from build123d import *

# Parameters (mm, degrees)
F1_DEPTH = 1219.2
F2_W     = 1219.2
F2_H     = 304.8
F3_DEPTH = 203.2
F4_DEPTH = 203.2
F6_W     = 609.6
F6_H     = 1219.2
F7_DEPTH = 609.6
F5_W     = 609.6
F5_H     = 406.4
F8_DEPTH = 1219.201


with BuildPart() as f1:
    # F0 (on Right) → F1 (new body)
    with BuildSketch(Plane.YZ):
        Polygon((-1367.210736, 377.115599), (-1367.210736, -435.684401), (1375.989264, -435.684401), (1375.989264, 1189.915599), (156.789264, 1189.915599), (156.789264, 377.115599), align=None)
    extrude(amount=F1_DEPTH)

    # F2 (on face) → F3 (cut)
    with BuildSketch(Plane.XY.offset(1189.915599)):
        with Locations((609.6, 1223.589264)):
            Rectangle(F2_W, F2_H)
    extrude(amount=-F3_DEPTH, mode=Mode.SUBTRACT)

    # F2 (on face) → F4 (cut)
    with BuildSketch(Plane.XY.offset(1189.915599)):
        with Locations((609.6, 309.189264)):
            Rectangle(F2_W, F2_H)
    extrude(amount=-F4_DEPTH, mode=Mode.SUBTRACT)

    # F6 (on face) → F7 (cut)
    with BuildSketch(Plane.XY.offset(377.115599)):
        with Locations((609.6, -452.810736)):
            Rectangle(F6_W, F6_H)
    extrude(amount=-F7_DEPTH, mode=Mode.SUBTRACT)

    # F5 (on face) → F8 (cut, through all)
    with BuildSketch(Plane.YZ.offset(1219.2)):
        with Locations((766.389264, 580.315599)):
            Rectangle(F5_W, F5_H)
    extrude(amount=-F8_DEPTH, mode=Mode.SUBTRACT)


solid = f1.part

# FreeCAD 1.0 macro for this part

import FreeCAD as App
import Part
import Sketcher

V = App.Vector
Q = App.Units.Quantity

doc = App.newDocument("Part")
body = doc.addObject("PartDesign::Body", "Body")

sketch1 = body.newObject("Sketcher::SketchObject", "Sketch")
sketch1.AttachmentSupport = (doc.getObject("YZ_Plane"), [""])
sketch1.MapMode = "FlatFace"
sketch1.addGeometry([
    Part.LineSegment(V(-1367.210736, 377.115599, 0), V(-1367.210736, -435.684401, 0)),
    Part.LineSegment(V(-1367.210736, -435.684401, 0), V(1375.989264, -435.684401, 0)),
    Part.LineSegment(V(1375.989264, -435.684401, 0), V(1375.989264, 1189.915599, 0)),
    Part.LineSegment(V(1375.989264, 1189.915599, 0), V(156.789264, 1189.915599, 0)),
    Part.LineSegment(V(156.789264, 1189.915599, 0), V(156.789264, 377.115599, 0)),
    Part.LineSegment(V(156.789264, 377.115599, 0), V(-1367.210736, 377.115599, 0)),
], False)
sketch1.addConstraint([
    Sketcher.Constraint("Coincident", 0, 2, 1, 1),
    Sketcher.Constraint("Coincident", 1, 2, 2, 1),
    Sketcher.Constraint("Coincident", 2, 2, 3, 1),
    Sketcher.Constraint("Coincident", 3, 2, 4, 1),
    Sketcher.Constraint("Coincident", 4, 2, 5, 1),
    Sketcher.Constraint("Coincident", 5, 2, 0, 1),
    Sketcher.Constraint("Vertical", 0),
    Sketcher.Constraint("Horizontal", 1),
    Sketcher.Constraint("Vertical", 2),
    Sketcher.Constraint("Horizontal", 3),
    Sketcher.Constraint("Vertical", 4),
    Sketcher.Constraint("Horizontal", 5),
    Sketcher.Constraint("Equal", 0, 4),
    Sketcher.Constraint("DistanceX", 1, 1, 1, 2, Q("108 in")),
    Sketcher.Constraint("DistanceX", 3, 2, 3, 1, Q("48 in")),
    Sketcher.Constraint("DistanceY", 0, 2, 0, 1, Q("32 in")),
    Sketcher.Constraint("DistanceY", 0, 2, -1, 1, Q("435.684401 mm")),
    Sketcher.Constraint("DistanceX", 0, 2, -1, 1, Q("1367.210736 mm")),
])
pad1 = body.newObject("PartDesign::Pad", "Pad")
pad1.Profile = sketch1
pad1.Length = Q("48 in")

sketch2 = body.newObject("Sketcher::SketchObject", "Sketch001")
sketch2.AttachmentSupport = (doc.getObject("XY_Plane"), [""])
sketch2.MapMode = "FlatFace"
sketch2.AttachmentOffset = App.Placement(V(0, 0, 1189.915599), App.Rotation())
sketch2.addGeometry([
    Part.LineSegment(V(0, 1375.989264, 0), V(0, 1071.189264, 0)),
    Part.LineSegment(V(0, 1071.189264, 0), V(1219.2, 1071.189264, 0)),
    Part.LineSegment(V(1219.2, 1071.189264, 0), V(1219.2, 1375.989264, 0)),
    Part.LineSegment(V(1219.2, 1375.989264, 0), V(0, 1375.989264, 0)),
], False)
sketch2.addConstraint([
    Sketcher.Constraint("Coincident", 0, 2, 1, 1),
    Sketcher.Constraint("Coincident", 1, 2, 2, 1),
    Sketcher.Constraint("Coincident", 2, 2, 3, 1),
    Sketcher.Constraint("Coincident", 3, 2, 0, 1),
    Sketcher.Constraint("Vertical", 0),
    Sketcher.Constraint("Horizontal", 1),
    Sketcher.Constraint("Vertical", 2),
    Sketcher.Constraint("Horizontal", 3),
    Sketcher.Constraint("PointOnObject", 0, 2, -2),
    Sketcher.Constraint("DistanceX", 1, 1, 1, 2, Q("48 in")),
    Sketcher.Constraint("DistanceY", 0, 2, 0, 1, Q("12 in")),
    Sketcher.Constraint("DistanceY", -1, 1, 0, 2, Q("1071.189264 mm")),
])
pocket1 = body.newObject("PartDesign::Pocket", "Pocket")
pocket1.Profile = sketch2
pocket1.Length = Q("8 in")

sketch3 = body.newObject("Sketcher::SketchObject", "Sketch002")
sketch3.AttachmentSupport = (doc.getObject("XY_Plane"), [""])
sketch3.MapMode = "FlatFace"
sketch3.AttachmentOffset = App.Placement(V(0, 0, 1189.915599), App.Rotation())
sketch3.addGeometry([
    Part.LineSegment(V(0, 461.589264, 0), V(0, 156.789264, 0)),
    Part.LineSegment(V(0, 156.789264, 0), V(1219.2, 156.789264, 0)),
    Part.LineSegment(V(1219.2, 156.789264, 0), V(1219.2, 461.589264, 0)),
    Part.LineSegment(V(1219.2, 461.589264, 0), V(0, 461.589264, 0)),
], False)
sketch3.addConstraint([
    Sketcher.Constraint("Coincident", 0, 2, 1, 1),
    Sketcher.Constraint("Coincident", 1, 2, 2, 1),
    Sketcher.Constraint("Coincident", 2, 2, 3, 1),
    Sketcher.Constraint("Coincident", 3, 2, 0, 1),
    Sketcher.Constraint("Vertical", 0),
    Sketcher.Constraint("Horizontal", 1),
    Sketcher.Constraint("Vertical", 2),
    Sketcher.Constraint("Horizontal", 3),
    Sketcher.Constraint("PointOnObject", 0, 2, -2),
    Sketcher.Constraint("DistanceX", 1, 1, 1, 2, Q("48 in")),
    Sketcher.Constraint("DistanceY", 0, 2, 0, 1, Q("12 in")),
    Sketcher.Constraint("DistanceY", -1, 1, 0, 2, Q("156.789264 mm")),
])
pocket2 = body.newObject("PartDesign::Pocket", "Pocket001")
pocket2.Profile = sketch3
pocket2.Length = Q("8 in")

sketch4 = body.newObject("Sketcher::SketchObject", "Sketch003")
sketch4.AttachmentSupport = (doc.getObject("XY_Plane"), [""])
sketch4.MapMode = "FlatFace"
sketch4.AttachmentOffset = App.Placement(V(0, 0, 377.115599), App.Rotation())
sketch4.addGeometry([
    Part.LineSegment(V(304.8, 156.789264, 0), V(304.8, -1062.410736, 0)),
    Part.LineSegment(V(304.8, -1062.410736, 0), V(914.4, -1062.410736, 0)),
    Part.LineSegment(V(914.4, -1062.410736, 0), V(914.4, 156.789264, 0)),
    Part.LineSegment(V(914.4, 156.789264, 0), V(304.8, 156.789264, 0)),
], False)
sketch4.addConstraint([
    Sketcher.Constraint("Coincident", 0, 2, 1, 1),
    Sketcher.Constraint("Coincident", 1, 2, 2, 1),
    Sketcher.Constraint("Coincident", 2, 2, 3, 1),
    Sketcher.Constraint("Coincident", 3, 2, 0, 1),
    Sketcher.Constraint("Vertical", 0),
    Sketcher.Constraint("Horizontal", 1),
    Sketcher.Constraint("Vertical", 2),
    Sketcher.Constraint("Horizontal", 3),
    Sketcher.Constraint("DistanceX", 1, 1, 1, 2, Q("24 in")),
    Sketcher.Constraint("DistanceY", 0, 2, 0, 1, Q("48 in")),
    Sketcher.Constraint("DistanceX", -1, 1, 0, 2, Q("12 in")),
    Sketcher.Constraint("DistanceY", 0, 2, -1, 1, Q("1062.410736 mm")),
])
pocket3 = body.newObject("PartDesign::Pocket", "Pocket002")
pocket3.Profile = sketch4
pocket3.Length = Q("24 in")

sketch5 = body.newObject("Sketcher::SketchObject", "Sketch004")
sketch5.AttachmentSupport = (doc.getObject("YZ_Plane"), [""])
sketch5.MapMode = "FlatFace"
sketch5.AttachmentOffset = App.Placement(V(0, 0, 48 * 25.4), App.Rotation())
sketch5.addGeometry([
    Part.LineSegment(V(461.589264, 783.515599, 0), V(461.589264, 377.115599, 0)),
    Part.LineSegment(V(461.589264, 377.115599, 0), V(1071.189264, 377.115599, 0)),
    Part.LineSegment(V(1071.189264, 377.115599, 0), V(1071.189264, 783.515599, 0)),
    Part.LineSegment(V(1071.189264, 783.515599, 0), V(461.589264, 783.515599, 0)),
], False)
sketch5.addConstraint([
    Sketcher.Constraint("Coincident", 0, 2, 1, 1),
    Sketcher.Constraint("Coincident", 1, 2, 2, 1),
    Sketcher.Constraint("Coincident", 2, 2, 3, 1),
    Sketcher.Constraint("Coincident", 3, 2, 0, 1),
    Sketcher.Constraint("Vertical", 0),
    Sketcher.Constraint("Horizontal", 1),
    Sketcher.Constraint("Vertical", 2),
    Sketcher.Constraint("Horizontal", 3),
    Sketcher.Constraint("DistanceX", 1, 1, 1, 2, Q("24 in")),
    Sketcher.Constraint("DistanceY", 0, 2, 0, 1, Q("16 in")),
    Sketcher.Constraint("DistanceY", -1, 1, 0, 2, Q("377.115599 mm")),
    Sketcher.Constraint("DistanceX", -1, 1, 0, 2, Q("461.589264 mm")),
])
pocket4 = body.newObject("PartDesign::Pocket", "Pocket003")
pocket4.Profile = sketch5
pocket4.Type = "ThroughAll"

doc.recompute()
